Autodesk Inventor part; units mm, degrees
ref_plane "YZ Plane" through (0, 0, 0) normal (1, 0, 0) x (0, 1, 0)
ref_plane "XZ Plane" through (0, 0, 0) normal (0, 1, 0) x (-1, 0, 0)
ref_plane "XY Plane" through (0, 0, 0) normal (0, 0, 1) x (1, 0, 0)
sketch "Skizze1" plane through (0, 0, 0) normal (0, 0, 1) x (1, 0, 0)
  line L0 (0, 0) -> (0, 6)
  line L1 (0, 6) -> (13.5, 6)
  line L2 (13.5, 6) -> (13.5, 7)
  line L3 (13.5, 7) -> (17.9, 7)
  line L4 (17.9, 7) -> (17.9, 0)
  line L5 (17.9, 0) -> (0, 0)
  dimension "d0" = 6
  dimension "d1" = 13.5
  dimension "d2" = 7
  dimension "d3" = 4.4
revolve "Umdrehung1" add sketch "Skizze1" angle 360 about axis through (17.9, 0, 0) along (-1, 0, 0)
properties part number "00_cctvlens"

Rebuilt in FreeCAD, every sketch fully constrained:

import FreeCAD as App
import Part
import Sketcher

V = App.Vector
Q = App.Units.Quantity

doc = App.newDocument("Part")
params = doc.addObject("Spreadsheet::Sheet", "Params")
for row, (alias, value) in enumerate([
    ("sketch1_height", "6 mm"),
    ("sketch1_height2", "7 mm"),
    ("sketch1_width", "4.4 mm"),
    ("sketch1_width2", "13.5 mm"),
    ("revolution_angle", "360 deg"),
], start=1):
    params.set(f"A{row}", alias)
    params.set(f"B{row}", "=" + value)
    params.setAlias(f"B{row}", alias)

body = doc.addObject("PartDesign::Body", "Body")

# Sketch on XY plane
sketch1 = doc.addObject("Sketcher::SketchObject", "Sketch")
body.addObject(sketch1)
sketch1.AttachmentSupport = (doc.XY_Plane, [""])
sketch1.MapMode = "FlatFace"
sketch1.addGeometry(Part.LineSegment(V(0, 6, 0), V(0, 0, 0)), False)
sketch1.addGeometry(Part.LineSegment(V(0, 0, 0), V(17.9, 0, 0)), False)
sketch1.addGeometry(Part.LineSegment(V(17.9, 0, 0), V(17.9, 7, 0)), False)
sketch1.addGeometry(Part.LineSegment(V(17.9, 7, 0), V(13.5, 7, 0)), False)
sketch1.addGeometry(Part.LineSegment(V(13.5, 7, 0), V(13.5, 6, 0)), False)
sketch1.addGeometry(Part.LineSegment(V(13.5, 6, 0), V(0, 6, 0)), False)
sketch1.addConstraint(Sketcher.Constraint("Coincident", 0, 2, 1, 1))
sketch1.addConstraint(Sketcher.Constraint("Coincident", 1, 2, 2, 1))
sketch1.addConstraint(Sketcher.Constraint("Coincident", 2, 2, 3, 1))
sketch1.addConstraint(Sketcher.Constraint("Coincident", 3, 2, 4, 1))
sketch1.addConstraint(Sketcher.Constraint("Coincident", 4, 2, 5, 1))
sketch1.addConstraint(Sketcher.Constraint("Coincident", 5, 2, 0, 1))
sketch1.addConstraint(Sketcher.Constraint("Vertical", 0))
sketch1.addConstraint(Sketcher.Constraint("Horizontal", 1))
sketch1.addConstraint(Sketcher.Constraint("Vertical", 2))
sketch1.addConstraint(Sketcher.Constraint("Horizontal", 3))
sketch1.addConstraint(Sketcher.Constraint("Vertical", 4))
sketch1.addConstraint(Sketcher.Constraint("Horizontal", 5))
sketch1.addConstraint(Sketcher.Constraint("Coincident", 0, 2, -1, 1))
sketch1.addConstraint(Sketcher.Constraint("DistanceY", 0, 2, 0, 1, Q("6 mm")))
sketch1.addConstraint(Sketcher.Constraint("DistanceY", 2, 1, 2, 2, Q("7 mm")))
sketch1.addConstraint(Sketcher.Constraint("DistanceX", 3, 2, 3, 1, Q("4.4 mm")))
sketch1.addConstraint(Sketcher.Constraint("DistanceX", 5, 2, 5, 1, Q("13.5 mm")))
sketch1.setExpression("Constraints[13]", "Params.sketch1_height")
sketch1.setExpression("Constraints[14]", "Params.sketch1_height2")
sketch1.setExpression("Constraints[15]", "Params.sketch1_width")
sketch1.setExpression("Constraints[16]", "Params.sketch1_width2")
revolution = doc.addObject("PartDesign::Revolution", "Revolution")
body.addObject(revolution)
revolution.Profile = sketch1
revolution.ReferenceAxis = (sketch1, ["H_Axis"])
revolution.setExpression("Angle", "Params.revolution_angle")

doc.recompute()
